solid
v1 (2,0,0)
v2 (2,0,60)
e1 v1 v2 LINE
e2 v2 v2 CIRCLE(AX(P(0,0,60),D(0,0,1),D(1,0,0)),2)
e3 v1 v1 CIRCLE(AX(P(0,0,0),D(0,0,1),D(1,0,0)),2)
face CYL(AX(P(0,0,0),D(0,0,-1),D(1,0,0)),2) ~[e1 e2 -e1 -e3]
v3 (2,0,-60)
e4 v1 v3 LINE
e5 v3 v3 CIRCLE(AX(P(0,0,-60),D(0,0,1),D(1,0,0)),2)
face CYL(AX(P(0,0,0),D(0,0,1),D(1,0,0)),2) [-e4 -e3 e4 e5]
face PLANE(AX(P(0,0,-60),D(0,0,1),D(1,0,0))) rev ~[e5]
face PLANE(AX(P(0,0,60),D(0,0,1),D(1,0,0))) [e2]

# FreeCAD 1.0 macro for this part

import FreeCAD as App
import Part
import Sketcher
Q = App.Units.Quantity

doc = App.newDocument("Part")
body = doc.addObject("PartDesign::Body", "Body")

# Sketch on XY plane
sketch1 = body.newObject("Sketcher::SketchObject", "Sketch")
sketch1.AttachmentSupport = (doc.getObject("XY_Plane"), [""])
sketch1.MapMode = "FlatFace"
sketch1.addGeometry(Part.Circle(App.Vector(0, 0, 0), App.Vector(0, 0, 1), 2), False)
sketch1.addConstraint(Sketcher.Constraint("Coincident", 0, 3, -1, 1))
sketch1.addConstraint(Sketcher.Constraint("Diameter", 0, Q("4 mm")))
pad1 = body.newObject("PartDesign::Pad", "Pad")
pad1.Profile = sketch1
pad1.Length = 120
pad1.Midplane = True

doc.recompute()
